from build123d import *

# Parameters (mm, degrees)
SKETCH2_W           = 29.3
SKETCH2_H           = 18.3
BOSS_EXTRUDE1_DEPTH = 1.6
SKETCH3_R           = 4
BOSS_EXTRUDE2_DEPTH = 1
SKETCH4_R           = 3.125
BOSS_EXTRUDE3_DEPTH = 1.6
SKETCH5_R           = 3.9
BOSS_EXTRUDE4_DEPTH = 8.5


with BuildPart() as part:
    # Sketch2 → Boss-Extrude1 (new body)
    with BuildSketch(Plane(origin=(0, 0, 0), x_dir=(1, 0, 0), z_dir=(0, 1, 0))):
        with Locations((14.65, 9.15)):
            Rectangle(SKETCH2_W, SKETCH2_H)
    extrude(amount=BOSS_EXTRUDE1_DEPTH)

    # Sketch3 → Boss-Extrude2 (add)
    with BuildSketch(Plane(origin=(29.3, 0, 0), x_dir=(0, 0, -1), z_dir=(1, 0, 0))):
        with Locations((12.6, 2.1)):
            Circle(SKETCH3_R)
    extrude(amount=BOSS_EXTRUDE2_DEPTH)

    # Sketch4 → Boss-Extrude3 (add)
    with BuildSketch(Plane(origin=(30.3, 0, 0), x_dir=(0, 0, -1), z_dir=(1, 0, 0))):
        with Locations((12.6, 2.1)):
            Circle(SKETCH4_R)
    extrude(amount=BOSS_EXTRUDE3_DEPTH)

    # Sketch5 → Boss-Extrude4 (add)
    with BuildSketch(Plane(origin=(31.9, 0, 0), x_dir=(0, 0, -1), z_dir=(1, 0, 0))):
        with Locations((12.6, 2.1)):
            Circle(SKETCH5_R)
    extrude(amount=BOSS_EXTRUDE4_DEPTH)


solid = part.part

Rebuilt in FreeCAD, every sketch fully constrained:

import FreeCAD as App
import Part
import Sketcher


def add_polygon(sketch, points):
    """Adds a closed chain of lines whose ends are joined by coincident constraints."""
    first, n = sketch.GeometryCount, len(points)
    for a, b in zip(points, points[1:] + points[:1]):
        sketch.addGeometry(Part.LineSegment(App.Vector(*a, 0), App.Vector(*b, 0)), False)
    for i in range(n):
        sketch.addConstraint(Sketcher.Constraint("Coincident", first + i, 2, first + (i + 1) % n, 1))

doc = App.newDocument("Part")
body = doc.addObject("PartDesign::Body", "Body")

# Sketch on XZ plane
sketch1 = body.newObject("Sketcher::SketchObject", "Sketch")
sketch1.AttachmentSupport = (doc.getObject("XZ_Plane"), [""])
sketch1.MapMode = "FlatFace"
add_polygon(sketch1, [(0, -18), (0, 0), (29, 0), (29, -18)])  # lines 0-3
sketch1.addConstraint([
    Sketcher.Constraint("Vertical", 0),
    Sketcher.Constraint("Horizontal", 1),
    Sketcher.Constraint("Vertical", 2),
    Sketcher.Constraint("Horizontal", 3),
    Sketcher.Constraint("Coincident", 0, 2, -1, 1),
    Sketcher.Constraint("DistanceX", 1, 1, 1, 2, 29.3),
    Sketcher.Constraint("DistanceY", 0, 1, 0, 2, 18.3),
])
pad1 = body.newObject("PartDesign::Pad", "Pad")
pad1.Profile = sketch1
pad1.Length = 1.6
pad1.Reversed = True

# Sketch on YZ plane
sketch2 = body.newObject("Sketcher::SketchObject", "Sketch001")
sketch2.AttachmentSupport = (doc.getObject("YZ_Plane"), [""])
sketch2.MapMode = "FlatFace"
sketch2.AttachmentOffset = App.Placement(App.Vector(0, 0, 29.3), App.Rotation())
sketch2.addGeometry(Part.Circle(App.Vector(2.1, -12.6, 0), App.Vector(0, 0, 1), 4), False)
sketch2.addConstraint([
    Sketcher.Constraint("Diameter", 0, 8.0),
    Sketcher.Constraint("DistanceX", -1, 1, 0, 3, 2.1),
    Sketcher.Constraint("DistanceY", 0, 3, -1, 1, 12.6),
])
pad2 = body.newObject("PartDesign::Pad", "Pad001")
pad2.Profile = sketch2
pad2.Length = 1

# Sketch on YZ plane
sketch3 = body.newObject("Sketcher::SketchObject", "Sketch002")
sketch3.AttachmentSupport = (doc.getObject("YZ_Plane"), [""])
sketch3.MapMode = "FlatFace"
sketch3.AttachmentOffset = App.Placement(App.Vector(0, 0, 30.3), App.Rotation())
sketch3.addGeometry(Part.Circle(App.Vector(2.1, -12.6, 0), App.Vector(0, 0, 1), 3.1), False)
sketch3.addConstraint([
    Sketcher.Constraint("Diameter", 0, 6.25),
    Sketcher.Constraint("DistanceX", -1, 1, 0, 3, 2.1),
    Sketcher.Constraint("DistanceY", 0, 3, -1, 1, 12.6),
])
pad3 = body.newObject("PartDesign::Pad", "Pad002")
pad3.Profile = sketch3
pad3.Length = 1.6

# Sketch on YZ plane
sketch4 = body.newObject("Sketcher::SketchObject", "Sketch003")
sketch4.AttachmentSupport = (doc.getObject("YZ_Plane"), [""])
sketch4.MapMode = "FlatFace"
sketch4.AttachmentOffset = App.Placement(App.Vector(0, 0, 31.9), App.Rotation())
sketch4.addGeometry(Part.Circle(App.Vector(2.1, -12.6, 0), App.Vector(0, 0, 1), 3.9), False)
sketch4.addConstraint([
    Sketcher.Constraint("Diameter", 0, 7.8),
    Sketcher.Constraint("DistanceX", -1, 1, 0, 3, 2.1),
    Sketcher.Constraint("DistanceY", 0, 3, -1, 1, 12.6),
])
pad4 = body.newObject("PartDesign::Pad", "Pad003")
pad4.Profile = sketch4
pad4.Length = 8.5

doc.recompute()
